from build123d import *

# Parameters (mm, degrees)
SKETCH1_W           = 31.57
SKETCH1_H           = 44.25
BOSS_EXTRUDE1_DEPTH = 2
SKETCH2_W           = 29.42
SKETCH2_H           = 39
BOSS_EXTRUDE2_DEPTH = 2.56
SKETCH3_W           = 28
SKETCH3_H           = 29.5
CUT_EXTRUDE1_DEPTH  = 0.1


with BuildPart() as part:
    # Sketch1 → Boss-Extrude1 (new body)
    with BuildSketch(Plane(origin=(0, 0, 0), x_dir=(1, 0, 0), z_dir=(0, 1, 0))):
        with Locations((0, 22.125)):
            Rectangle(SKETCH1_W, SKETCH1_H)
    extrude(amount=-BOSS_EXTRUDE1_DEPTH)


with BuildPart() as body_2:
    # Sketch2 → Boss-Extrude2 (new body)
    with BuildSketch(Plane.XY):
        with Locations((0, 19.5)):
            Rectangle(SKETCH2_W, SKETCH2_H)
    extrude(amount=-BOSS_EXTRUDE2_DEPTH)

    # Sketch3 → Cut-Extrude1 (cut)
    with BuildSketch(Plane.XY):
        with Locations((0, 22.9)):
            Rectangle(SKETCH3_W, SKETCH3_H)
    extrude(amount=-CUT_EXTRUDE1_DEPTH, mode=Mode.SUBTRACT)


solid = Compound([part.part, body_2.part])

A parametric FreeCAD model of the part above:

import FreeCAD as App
import Part
import Sketcher
from FreeCAD import Vector

doc = App.newDocument("Part")
body = doc.addObject("PartDesign::Body", "Body")

# Sketch on XZ plane
sketch1 = body.newObject("Sketcher::SketchObject", "Sketch")
sketch1.AttachmentSupport = (doc.getObject("XZ_Plane"), [""])
sketch1.MapMode = "FlatFace"
sketch1.addGeometry([
    Part.LineSegment(Vector(-15.785, -44.25, 0), Vector(-15.785, 0, 0)),
    Part.LineSegment(Vector(-15.785, 0, 0), Vector(15.785, 0, 0)),
    Part.LineSegment(Vector(15.785, 0, 0), Vector(15.785, -44.25, 0)),
    Part.LineSegment(Vector(15.785, -44.25, 0), Vector(-15.785, -44.25, 0)),
], False)
sketch1.addConstraint([
    Sketcher.Constraint("Coincident", 0, 2, 1, 1),
    Sketcher.Constraint("Coincident", 1, 2, 2, 1),
    Sketcher.Constraint("Coincident", 2, 2, 3, 1),
    Sketcher.Constraint("Coincident", 3, 2, 0, 1),
    Sketcher.Constraint("Vertical", 0),
    Sketcher.Constraint("Horizontal", 1),
    Sketcher.Constraint("Vertical", 2),
    Sketcher.Constraint("Horizontal", 3),
    Sketcher.Constraint("Symmetric", 0, 2, 1, 2, -1, 1),
    Sketcher.Constraint("DistanceX", 1, 1, 1, 2, 31.57),
    Sketcher.Constraint("DistanceY", 0, 1, 0, 2, 44.25),
])
pad1 = body.newObject("PartDesign::Pad", "Pad")
pad1.Profile = sketch1
pad1.Length = 2
body2 = doc.addObject("PartDesign::Body", "Body001")

# Sketch on XY plane
sketch2 = body2.newObject("Sketcher::SketchObject", "Sketch001")
sketch2.AttachmentSupport = (doc.getObject("XY_Plane001"), [""])
sketch2.MapMode = "FlatFace"
sketch2.addGeometry([
    Part.LineSegment(Vector(-14.71, 39, 0), Vector(-14.71, 0, 0)),
    Part.LineSegment(Vector(-14.71, 0, 0), Vector(14.71, 0, 0)),
    Part.LineSegment(Vector(14.71, 0, 0), Vector(14.71, 39, 0)),
    Part.LineSegment(Vector(14.71, 39, 0), Vector(-14.71, 39, 0)),
], False)
sketch2.addConstraint([
    Sketcher.Constraint("Coincident", 0, 2, 1, 1),
    Sketcher.Constraint("Coincident", 1, 2, 2, 1),
    Sketcher.Constraint("Coincident", 2, 2, 3, 1),
    Sketcher.Constraint("Coincident", 3, 2, 0, 1),
    Sketcher.Constraint("Vertical", 0),
    Sketcher.Constraint("Horizontal", 1),
    Sketcher.Constraint("Vertical", 2),
    Sketcher.Constraint("Horizontal", 3),
    Sketcher.Constraint("Symmetric", 0, 2, 1, 2, -1, 1),
    Sketcher.Constraint("DistanceY", 0, 2, 0, 1, 39.0),
    Sketcher.Constraint("DistanceX", 1, 1, 1, 2, 29.42),
])
pad2 = body2.newObject("PartDesign::Pad", "Pad001")
pad2.Profile = sketch2
pad2.Length = 2.56
pad2.Reversed = True

# Sketch on XY plane
sketch3 = body2.newObject("Sketcher::SketchObject", "Sketch002")
sketch3.AttachmentSupport = (doc.getObject("XY_Plane001"), [""])
sketch3.MapMode = "FlatFace"
sketch3.addGeometry([
    Part.LineSegment(Vector(-14, 37.65, 0), Vector(-14, 8.15, 0)),
    Part.LineSegment(Vector(-14, 8.15, 0), Vector(14, 8.15, 0)),
    Part.LineSegment(Vector(14, 8.15, 0), Vector(14, 37.65, 0)),
    Part.LineSegment(Vector(14, 37.65, 0), Vector(-14, 37.65, 0)),
], False)
sketch3.addConstraint([
    Sketcher.Constraint("Coincident", 0, 2, 1, 1),
    Sketcher.Constraint("Coincident", 1, 2, 2, 1),
    Sketcher.Constraint("Coincident", 2, 2, 3, 1),
    Sketcher.Constraint("Coincident", 3, 2, 0, 1),
    Sketcher.Constraint("Vertical", 0),
    Sketcher.Constraint("Horizontal", 1),
    Sketcher.Constraint("Vertical", 2),
    Sketcher.Constraint("Horizontal", 3),
    Sketcher.Constraint("DistanceX", 1, 1, 1, 2, 28.0),
    Sketcher.Constraint("DistanceY", 0, 2, 0, 1, 29.5),
    Sketcher.Constraint("DistanceX", 0, 2, -1, 1, 14.0),
    Sketcher.Constraint("DistanceY", -1, 1, 0, 2, 8.15),
])
pocket1 = body2.newObject("PartDesign::Pocket", "Pocket")
pocket1.Profile = sketch3
pocket1.Length = 0.1

doc.recompute()
